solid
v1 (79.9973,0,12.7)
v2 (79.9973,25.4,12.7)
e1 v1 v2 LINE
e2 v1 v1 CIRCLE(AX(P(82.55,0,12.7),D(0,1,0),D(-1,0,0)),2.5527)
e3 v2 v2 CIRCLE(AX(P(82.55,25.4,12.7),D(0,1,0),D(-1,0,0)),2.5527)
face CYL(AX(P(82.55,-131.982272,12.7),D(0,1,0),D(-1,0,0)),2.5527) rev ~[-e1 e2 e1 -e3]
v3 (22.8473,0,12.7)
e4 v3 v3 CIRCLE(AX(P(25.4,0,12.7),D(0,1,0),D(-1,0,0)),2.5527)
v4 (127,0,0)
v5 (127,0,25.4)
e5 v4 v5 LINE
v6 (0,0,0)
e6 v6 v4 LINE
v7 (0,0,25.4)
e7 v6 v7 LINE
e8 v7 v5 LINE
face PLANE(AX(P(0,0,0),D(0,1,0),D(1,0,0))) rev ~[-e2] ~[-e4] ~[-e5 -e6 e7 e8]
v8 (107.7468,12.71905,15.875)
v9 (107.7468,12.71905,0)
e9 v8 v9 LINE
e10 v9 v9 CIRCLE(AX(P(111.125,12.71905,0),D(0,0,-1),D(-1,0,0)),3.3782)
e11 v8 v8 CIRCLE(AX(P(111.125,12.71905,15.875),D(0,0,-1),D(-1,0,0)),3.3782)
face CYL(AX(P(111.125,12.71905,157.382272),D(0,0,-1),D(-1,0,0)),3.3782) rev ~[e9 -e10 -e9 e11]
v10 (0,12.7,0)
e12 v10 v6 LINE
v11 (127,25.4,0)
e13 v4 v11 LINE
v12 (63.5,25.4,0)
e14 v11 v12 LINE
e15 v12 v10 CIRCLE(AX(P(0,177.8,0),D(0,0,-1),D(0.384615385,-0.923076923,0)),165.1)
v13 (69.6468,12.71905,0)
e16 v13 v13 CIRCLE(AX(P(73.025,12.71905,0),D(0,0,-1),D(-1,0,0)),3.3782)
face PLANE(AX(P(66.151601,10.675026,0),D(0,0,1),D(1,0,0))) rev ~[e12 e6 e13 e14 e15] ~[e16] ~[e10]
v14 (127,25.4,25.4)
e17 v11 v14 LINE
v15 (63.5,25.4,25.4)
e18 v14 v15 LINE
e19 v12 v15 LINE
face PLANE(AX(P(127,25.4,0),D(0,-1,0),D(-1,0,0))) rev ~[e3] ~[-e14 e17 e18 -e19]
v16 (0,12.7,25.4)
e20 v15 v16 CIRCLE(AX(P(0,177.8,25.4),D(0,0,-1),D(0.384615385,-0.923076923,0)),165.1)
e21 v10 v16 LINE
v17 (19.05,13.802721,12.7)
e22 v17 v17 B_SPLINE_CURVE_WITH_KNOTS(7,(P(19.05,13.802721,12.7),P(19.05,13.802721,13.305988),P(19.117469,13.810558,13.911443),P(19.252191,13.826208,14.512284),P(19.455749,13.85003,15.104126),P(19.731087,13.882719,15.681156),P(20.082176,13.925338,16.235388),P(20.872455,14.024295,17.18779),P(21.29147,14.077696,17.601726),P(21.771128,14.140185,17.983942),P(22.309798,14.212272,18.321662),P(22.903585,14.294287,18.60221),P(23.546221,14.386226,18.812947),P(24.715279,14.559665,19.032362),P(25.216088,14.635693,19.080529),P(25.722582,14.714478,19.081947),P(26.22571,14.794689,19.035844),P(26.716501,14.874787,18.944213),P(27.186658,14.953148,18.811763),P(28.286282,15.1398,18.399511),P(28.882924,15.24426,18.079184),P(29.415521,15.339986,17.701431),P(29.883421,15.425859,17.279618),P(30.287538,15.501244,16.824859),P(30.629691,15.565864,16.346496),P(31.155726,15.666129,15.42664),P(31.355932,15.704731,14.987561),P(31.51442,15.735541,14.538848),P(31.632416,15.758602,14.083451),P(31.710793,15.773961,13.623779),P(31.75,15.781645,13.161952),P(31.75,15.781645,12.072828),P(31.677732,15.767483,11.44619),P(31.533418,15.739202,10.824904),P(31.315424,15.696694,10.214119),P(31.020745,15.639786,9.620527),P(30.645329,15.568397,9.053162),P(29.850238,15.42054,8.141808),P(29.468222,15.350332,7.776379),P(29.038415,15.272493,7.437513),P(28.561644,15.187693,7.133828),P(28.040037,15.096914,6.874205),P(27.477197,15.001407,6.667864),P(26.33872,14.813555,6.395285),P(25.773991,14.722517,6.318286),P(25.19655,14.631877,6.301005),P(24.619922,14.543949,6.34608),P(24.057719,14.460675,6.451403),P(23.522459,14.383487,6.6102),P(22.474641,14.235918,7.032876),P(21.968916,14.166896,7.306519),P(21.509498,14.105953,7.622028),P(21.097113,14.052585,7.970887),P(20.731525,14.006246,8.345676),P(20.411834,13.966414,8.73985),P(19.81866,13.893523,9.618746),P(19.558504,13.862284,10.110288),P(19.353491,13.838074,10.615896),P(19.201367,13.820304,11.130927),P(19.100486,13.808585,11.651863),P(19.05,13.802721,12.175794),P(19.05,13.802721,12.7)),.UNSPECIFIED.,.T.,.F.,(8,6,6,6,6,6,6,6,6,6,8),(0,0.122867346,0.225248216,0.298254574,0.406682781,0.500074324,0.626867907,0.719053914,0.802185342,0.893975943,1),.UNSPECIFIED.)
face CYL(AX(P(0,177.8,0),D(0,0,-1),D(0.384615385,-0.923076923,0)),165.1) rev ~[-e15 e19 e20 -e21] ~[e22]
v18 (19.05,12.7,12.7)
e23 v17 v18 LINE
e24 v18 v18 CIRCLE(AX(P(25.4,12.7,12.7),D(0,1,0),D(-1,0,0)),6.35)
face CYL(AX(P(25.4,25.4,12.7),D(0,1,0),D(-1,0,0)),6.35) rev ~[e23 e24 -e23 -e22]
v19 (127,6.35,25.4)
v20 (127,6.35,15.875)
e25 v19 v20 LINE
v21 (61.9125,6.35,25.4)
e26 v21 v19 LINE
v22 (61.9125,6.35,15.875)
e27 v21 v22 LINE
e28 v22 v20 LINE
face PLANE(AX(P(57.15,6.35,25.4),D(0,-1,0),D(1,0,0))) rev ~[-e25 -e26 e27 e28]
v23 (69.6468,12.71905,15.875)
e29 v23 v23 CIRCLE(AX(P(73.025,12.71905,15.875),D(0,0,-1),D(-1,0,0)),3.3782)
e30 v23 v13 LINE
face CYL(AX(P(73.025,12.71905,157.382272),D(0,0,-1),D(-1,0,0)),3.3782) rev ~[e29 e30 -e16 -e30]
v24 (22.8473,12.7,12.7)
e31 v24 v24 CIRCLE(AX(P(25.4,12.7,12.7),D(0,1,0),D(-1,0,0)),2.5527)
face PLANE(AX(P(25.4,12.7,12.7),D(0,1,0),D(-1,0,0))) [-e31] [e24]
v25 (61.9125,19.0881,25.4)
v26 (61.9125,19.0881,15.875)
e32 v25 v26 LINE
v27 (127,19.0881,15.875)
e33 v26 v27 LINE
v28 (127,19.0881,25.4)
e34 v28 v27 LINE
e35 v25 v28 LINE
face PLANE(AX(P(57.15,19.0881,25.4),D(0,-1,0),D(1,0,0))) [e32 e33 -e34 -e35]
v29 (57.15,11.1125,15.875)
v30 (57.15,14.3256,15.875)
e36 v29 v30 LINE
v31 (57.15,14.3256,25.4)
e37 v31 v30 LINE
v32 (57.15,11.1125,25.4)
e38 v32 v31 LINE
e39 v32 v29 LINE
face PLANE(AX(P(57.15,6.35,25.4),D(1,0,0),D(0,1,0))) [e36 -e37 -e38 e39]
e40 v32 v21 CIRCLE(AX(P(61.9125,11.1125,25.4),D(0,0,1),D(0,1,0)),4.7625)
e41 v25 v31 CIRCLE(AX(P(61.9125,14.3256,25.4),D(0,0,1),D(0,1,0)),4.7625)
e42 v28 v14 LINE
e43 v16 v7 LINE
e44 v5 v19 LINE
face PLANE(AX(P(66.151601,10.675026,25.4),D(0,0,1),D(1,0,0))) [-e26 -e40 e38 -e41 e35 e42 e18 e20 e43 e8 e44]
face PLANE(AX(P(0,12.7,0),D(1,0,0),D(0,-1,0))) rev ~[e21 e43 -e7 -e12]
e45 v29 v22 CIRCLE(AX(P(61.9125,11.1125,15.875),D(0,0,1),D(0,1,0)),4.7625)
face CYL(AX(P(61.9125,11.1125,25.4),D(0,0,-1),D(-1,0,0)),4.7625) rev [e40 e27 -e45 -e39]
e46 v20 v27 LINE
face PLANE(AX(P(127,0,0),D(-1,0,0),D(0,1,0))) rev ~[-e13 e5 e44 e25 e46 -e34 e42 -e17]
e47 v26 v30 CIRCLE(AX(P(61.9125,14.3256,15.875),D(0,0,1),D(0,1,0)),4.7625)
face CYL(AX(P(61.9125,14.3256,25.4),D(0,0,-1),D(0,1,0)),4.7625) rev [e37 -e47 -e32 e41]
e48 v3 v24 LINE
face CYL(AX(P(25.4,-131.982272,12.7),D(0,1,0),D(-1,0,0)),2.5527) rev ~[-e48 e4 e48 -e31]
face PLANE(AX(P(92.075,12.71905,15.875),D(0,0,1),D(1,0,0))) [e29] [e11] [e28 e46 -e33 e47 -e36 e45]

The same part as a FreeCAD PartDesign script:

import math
import FreeCAD as App
import Part
import Sketcher
from FreeCAD import Vector
Q = App.Units.Quantity


def edges_at(feature, points):
    """Names of the edges that pass closest to the given points."""
    edges = feature.Shape.Edges
    near = lambda p: min(range(len(edges)), key=lambda i: edges[i].distToShape(Part.Vertex(*p))[0])
    return sorted({f"Edge{near(p) + 1}" for p in points})

doc = App.newDocument("Part")
body = doc.addObject("PartDesign::Body", "Body")

sketch1 = doc.addObject("Sketcher::SketchObject", "Sketch")
body.addObject(sketch1)
sketch1.AttachmentSupport = (doc.XY_Plane, [""])
sketch1.MapMode = "FlatFace"
sketch1.addGeometry(Part.LineSegment(Vector(0, 12.7, 0), Vector(0, 0, 0)), False)
sketch1.addGeometry(Part.LineSegment(Vector(0, 0, 0), Vector(127, 0, 0)), False)
sketch1.addGeometry(Part.LineSegment(Vector(127, 0, 0), Vector(127, 25.4, 0)), False)
sketch1.addGeometry(Part.LineSegment(Vector(127, 25.4, 0), Vector(63.5, 25.4, 0)), False)
sketch1.addGeometry(Part.ArcOfCircle(Part.Circle(Vector(0, 177.8, 0), Vector(0, 0, 1), 165.1), math.radians(-90), math.radians(-67.380135)), False)
sketch1.addConstraint(Sketcher.Constraint("Coincident", 0, 2, 1, 1))
sketch1.addConstraint(Sketcher.Constraint("Coincident", 1, 2, 2, 1))
sketch1.addConstraint(Sketcher.Constraint("Coincident", 2, 2, 3, 1))
sketch1.addConstraint(Sketcher.Constraint("Coincident", 3, 2, 4, 2))
sketch1.addConstraint(Sketcher.Constraint("Coincident", 4, 1, 0, 1))
sketch1.addConstraint(Sketcher.Constraint("Vertical", 0))
sketch1.addConstraint(Sketcher.Constraint("Horizontal", 1))
sketch1.addConstraint(Sketcher.Constraint("Vertical", 2))
sketch1.addConstraint(Sketcher.Constraint("Horizontal", 3))
sketch1.addConstraint(Sketcher.Constraint("Coincident", 0, 2, -1, 1))
sketch1.addConstraint(Sketcher.Constraint("PointOnObject", 4, 3, -2))
sketch1.addConstraint(Sketcher.Constraint("Radius", 4, Q("6.5 in")))
sketch1.addConstraint(Sketcher.Constraint("DistanceX", 1, 1, 1, 2, Q("5 in")))
sketch1.addConstraint(Sketcher.Constraint("DistanceY", 2, 1, 2, 2, Q("1 in")))
sketch1.addConstraint(Sketcher.Constraint("DistanceX", 3, 2, 3, 1, Q("2.5 in")))
pad1 = doc.addObject("PartDesign::Pad", "Pad")
body.addObject(pad1)
pad1.Profile = sketch1
pad1.Length = Q("1 in")

sketch2 = doc.addObject("Sketcher::SketchObject", "Sketch001")
body.addObject(sketch2)
sketch2.AttachmentSupport = (doc.XZ_Plane, [""])
sketch2.MapMode = "FlatFace"
sketch2.addGeometry(Part.Circle(Vector(25.4, 12.7, 0), Vector(0, 0, 1), 2.5527), False)
sketch2.addGeometry(Part.Circle(Vector(82.55, 12.7, 0), Vector(0, 0, 1), 2.5527), False)
sketch2.addConstraint(Sketcher.Constraint("Equal", 0, 1))
sketch2.addConstraint(Sketcher.Constraint("Horizontal", 0, 3, 1, 3))
sketch2.addConstraint(Sketcher.Constraint("Diameter", 0, Q("0.201 in")))
sketch2.addConstraint(Sketcher.Constraint("DistanceX", -1, 1, 0, 3, Q("1 in")))
sketch2.addConstraint(Sketcher.Constraint("DistanceY", -1, 1, 0, 3, Q("0.5 in")))
sketch2.addConstraint(Sketcher.Constraint("DistanceX", -1, 1, 1, 3, Q("3.25 in")))
doc.recompute()
hole = doc.addObject("PartDesign::Hole", "Hole")
body.addObject(hole)
hole.Profile = sketch2
hole.ThreadType = "None"
hole.Diameter = Q("0.201 in")
hole.DepthType = "ThroughAll"

sketch3 = doc.addObject("Sketcher::SketchObject", "Sketch002")
body.addObject(sketch3)
sketch3.AttachmentSupport = (doc.XZ_Plane, [""])
sketch3.MapMode = "FlatFace"
sketch3.AttachmentOffset = App.Placement(Vector(0, 0, -1 * 25.4), App.Rotation())
sketch3.addGeometry(Part.Circle(Vector(25.4, 12.7, 0), Vector(0, 0, 1), 6.35), False)
sketch3.addConstraint(Sketcher.Constraint("Diameter", 0, Q("0.5 in")))
sketch3.addConstraint(Sketcher.Constraint("DistanceX", -1, 1, 0, 3, Q("1 in")))
sketch3.addConstraint(Sketcher.Constraint("DistanceY", -1, 1, 0, 3, Q("0.5 in")))
pocket1 = doc.addObject("PartDesign::Pocket", "Pocket")
body.addObject(pocket1)
pocket1.Profile = sketch3
pocket1.Length = Q("0.5 in")
pocket1.Reversed = True

sketch4 = doc.addObject("Sketcher::SketchObject", "Sketch003")
body.addObject(sketch4)
sketch4.AttachmentSupport = (doc.XY_Plane, [""])
sketch4.MapMode = "FlatFace"
sketch4.AttachmentOffset = App.Placement(Vector(0, 0, 1 * 25.4), App.Rotation())
sketch4.addGeometry(Part.LineSegment(Vector(57.15, 19.0881, 0), Vector(57.15, 6.35, 0)), False)
sketch4.addGeometry(Part.LineSegment(Vector(57.15, 6.35, 0), Vector(127, 6.35, 0)), False)
sketch4.addGeometry(Part.LineSegment(Vector(127, 6.35, 0), Vector(127, 19.0881, 0)), False)
sketch4.addGeometry(Part.LineSegment(Vector(127, 19.0881, 0), Vector(57.15, 19.0881, 0)), False)
sketch4.addConstraint(Sketcher.Constraint("Coincident", 0, 2, 1, 1))
sketch4.addConstraint(Sketcher.Constraint("Coincident", 1, 2, 2, 1))
sketch4.addConstraint(Sketcher.Constraint("Coincident", 2, 2, 3, 1))
sketch4.addConstraint(Sketcher.Constraint("Coincident", 3, 2, 0, 1))
sketch4.addConstraint(Sketcher.Constraint("Vertical", 0))
sketch4.addConstraint(Sketcher.Constraint("Horizontal", 1))
sketch4.addConstraint(Sketcher.Constraint("Vertical", 2))
sketch4.addConstraint(Sketcher.Constraint("Horizontal", 3))
sketch4.addConstraint(Sketcher.Constraint("DistanceX", -1, 1, 1, 2, Q("5 in")))
sketch4.addConstraint(Sketcher.Constraint("DistanceX", 1, 1, 1, 2, Q("2.75 in")))
sketch4.addConstraint(Sketcher.Constraint("DistanceY", -1, 1, 0, 2, Q("0.25 in")))
sketch4.addConstraint(Sketcher.Constraint("DistanceY", 0, 2, 0, 1, Q("0.5015 in")))
pocket2 = doc.addObject("PartDesign::Pocket", "Pocket001")
body.addObject(pocket2)
pocket2.Profile = sketch4
pocket2.Length = Q("0.375 in")

sketch5 = doc.addObject("Sketcher::SketchObject", "Sketch004")
body.addObject(sketch5)
sketch5.AttachmentSupport = (doc.XY_Plane, [""])
sketch5.MapMode = "FlatFace"
sketch5.AttachmentOffset = App.Placement(Vector(0, 0, 1 * 25.4), App.Rotation())
sketch5.addGeometry(Part.Circle(Vector(73.025, 12.71905, 0), Vector(0, 0, 1), 3.3782), False)
sketch5.addGeometry(Part.Circle(Vector(111.125, 12.71905, 0), Vector(0, 0, 1), 3.3782), False)
sketch5.addConstraint(Sketcher.Constraint("Equal", 0, 1))
sketch5.addConstraint(Sketcher.Constraint("Horizontal", 0, 3, 1, 3))
sketch5.addConstraint(Sketcher.Constraint("Diameter", 0, Q("0.266 in")))
sketch5.addConstraint(Sketcher.Constraint("DistanceX", 0, 3, 1, 3, Q("1.5 in")))
sketch5.addConstraint(Sketcher.Constraint("DistanceX", -1, 1, 0, 3, Q("2.875 in")))
sketch5.addConstraint(Sketcher.Constraint("DistanceY", -1, 1, 0, 3, Q("12.71905 mm")))
doc.recompute()
hole2 = doc.addObject("PartDesign::Hole", "Hole001")
body.addObject(hole2)
hole2.Profile = sketch5
hole2.ThreadType = "None"
hole2.Diameter = Q("0.266 in")
hole2.DepthType = "ThroughAll"
doc.recompute()

fillet = doc.addObject("PartDesign::Fillet", "Fillet")
body.addObject(fillet)
fillet.Base = (hole2, edges_at(hole2, [(57.15, 19.088, 20.637), (57.15, 6.35, 20.637)]))
fillet.Radius = Q("0.1875 in")

doc.recompute()
